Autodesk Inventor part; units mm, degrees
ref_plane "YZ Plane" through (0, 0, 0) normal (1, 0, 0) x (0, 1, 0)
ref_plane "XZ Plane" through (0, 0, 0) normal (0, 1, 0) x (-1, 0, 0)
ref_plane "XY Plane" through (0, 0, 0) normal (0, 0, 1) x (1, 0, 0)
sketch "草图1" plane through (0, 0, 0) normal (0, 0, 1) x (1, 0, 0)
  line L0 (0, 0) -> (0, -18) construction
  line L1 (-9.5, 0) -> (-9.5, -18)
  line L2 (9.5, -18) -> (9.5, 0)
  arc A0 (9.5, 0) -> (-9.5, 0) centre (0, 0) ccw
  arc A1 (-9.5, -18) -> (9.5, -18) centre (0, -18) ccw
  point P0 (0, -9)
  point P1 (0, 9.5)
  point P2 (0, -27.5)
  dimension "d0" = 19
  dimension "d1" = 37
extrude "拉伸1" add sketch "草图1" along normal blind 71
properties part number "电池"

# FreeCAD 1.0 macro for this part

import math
import FreeCAD as App
import Part
import Sketcher
from FreeCAD import Vector

doc = App.newDocument("Part")
body = doc.addObject("PartDesign::Body", "Body")

# Sketch on XY plane
sketch1 = doc.addObject("Sketcher::SketchObject", "Sketch")
body.addObject(sketch1)
sketch1.AttachmentSupport = (doc.XY_Plane, [""])
sketch1.MapMode = "FlatFace"
sketch1.addGeometry([
    Part.ArcOfCircle(Part.Circle(Vector(0, 0, 0), Vector(0, 0, 1), 9.5), math.radians(0), math.radians(180)),
    Part.LineSegment(Vector(-9.5, 0, 0), Vector(-9.5, -18, 0)),
    Part.ArcOfCircle(Part.Circle(Vector(0, -18, 0), Vector(0, 0, 1), 9.5), math.radians(180), math.radians(360)),
    Part.LineSegment(Vector(9.5, -18, 0), Vector(9.5, 0, 0)),
], False)
sketch1.addConstraint([
    Sketcher.Constraint("Tangent", 0, 2, 1, 1),
    Sketcher.Constraint("Tangent", 1, 2, 2, 1),
    Sketcher.Constraint("Tangent", 2, 2, 3, 1),
    Sketcher.Constraint("Tangent", 3, 2, 0, 1),
    Sketcher.Constraint("Vertical", 1),
    Sketcher.Constraint("Vertical", 3),
    Sketcher.Constraint("Coincident", 0, 3, -1, 1),
    Sketcher.Constraint("Radius", 0, 9.5),
    Sketcher.Constraint("DistanceY", 1, 2, 1, 1, 18.0),
])
pad1 = doc.addObject("PartDesign::Pad", "Pad")
body.addObject(pad1)
pad1.Profile = sketch1
pad1.Length = 71

doc.recompute()
